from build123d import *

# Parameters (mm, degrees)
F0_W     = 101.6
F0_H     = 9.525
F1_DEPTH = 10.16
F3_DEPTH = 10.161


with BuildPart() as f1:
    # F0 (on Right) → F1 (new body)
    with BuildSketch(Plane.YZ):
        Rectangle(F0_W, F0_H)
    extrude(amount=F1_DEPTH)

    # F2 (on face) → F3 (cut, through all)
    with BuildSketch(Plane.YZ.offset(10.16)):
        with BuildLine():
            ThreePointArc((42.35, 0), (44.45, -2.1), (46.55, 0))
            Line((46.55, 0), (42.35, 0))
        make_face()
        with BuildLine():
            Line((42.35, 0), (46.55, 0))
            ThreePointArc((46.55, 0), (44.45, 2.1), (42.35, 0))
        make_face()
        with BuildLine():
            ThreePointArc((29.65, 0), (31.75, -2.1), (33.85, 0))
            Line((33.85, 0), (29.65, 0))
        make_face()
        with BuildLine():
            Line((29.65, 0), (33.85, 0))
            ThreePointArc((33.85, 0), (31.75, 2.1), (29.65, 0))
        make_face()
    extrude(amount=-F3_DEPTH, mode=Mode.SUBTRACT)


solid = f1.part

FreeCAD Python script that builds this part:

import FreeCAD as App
import Part
import Sketcher
Q = App.Units.Quantity


def add_polygon(sketch, points):
    """Adds a closed chain of lines whose ends are joined by coincident constraints."""
    first, n = sketch.GeometryCount, len(points)
    for a, b in zip(points, points[1:] + points[:1]):
        sketch.addGeometry(Part.LineSegment(App.Vector(*a, 0), App.Vector(*b, 0)), False)
    for i in range(n):
        sketch.addConstraint(Sketcher.Constraint("Coincident", first + i, 2, first + (i + 1) % n, 1))

doc = App.newDocument("Part")
params = doc.addObject("Spreadsheet::Sheet", "Params")
for row, (alias, value) in enumerate([
    ("sketch1_width", "4 in"),
    ("sketch1_height", "0.375 in"),
    ("pad1_length", "0.4 in"),
], start=1):
    params.set(f"A{row}", alias)
    params.set(f"B{row}", "=" + value)
    params.setAlias(f"B{row}", alias)

body = doc.addObject("PartDesign::Body", "Body")

sketch1 = body.newObject("Sketcher::SketchObject", "Sketch")
sketch1.AttachmentSupport = (doc.getObject("YZ_Plane"), [""])
sketch1.MapMode = "FlatFace"
add_polygon(sketch1, [(-51, 5), (-51, -5), (51, -5), (51, 5)])
sketch1.addConstraint([
    Sketcher.Constraint("Vertical", 0),
    Sketcher.Constraint("Horizontal", 1),
    Sketcher.Constraint("Vertical", 2),
    Sketcher.Constraint("Horizontal", 3),
    Sketcher.Constraint("Symmetric", 0, 2, 2, 2, -1, 1),
    Sketcher.Constraint("DistanceX", 1, 1, 1, 2, Q("4 in")),
    Sketcher.Constraint("DistanceY", 0, 2, 0, 1, Q("0.375 in")),
])
sketch1.setExpression("Constraints[9]", "Params.sketch1_width")
sketch1.setExpression("Constraints[10]", "Params.sketch1_height")
pad1 = body.newObject("PartDesign::Pad", "Pad")
pad1.Profile = sketch1
pad1.setExpression("Length", "Params.pad1_length")

sketch2 = body.newObject("Sketcher::SketchObject", "Sketch001")
sketch2.AttachmentSupport = (doc.getObject("YZ_Plane"), [""])
sketch2.MapMode = "FlatFace"
sketch2.AttachmentOffset = App.Placement(App.Vector(0, 0, 0.4 * 25.4), App.Rotation())
sketch2.addGeometry([
    Part.Circle(App.Vector(44.5, 0, 0), App.Vector(0, 0, 1), 2.1),
    Part.Circle(App.Vector(31.8, 0, 0), App.Vector(0, 0, 1), 2.1),
], False)
sketch2.addConstraint([
    Sketcher.Constraint("Equal", 0, 1),
    Sketcher.Constraint("PointOnObject", 0, 3, -1),
    Sketcher.Constraint("PointOnObject", 1, 3, -1),
    Sketcher.Constraint("DistanceX", 1, 3, 0, 3, Q("0.5 in")),
    Sketcher.Constraint("Diameter", 0, Q("4.2 mm")),
    Sketcher.Constraint("DistanceX", -1, 1, 0, 3, Q("1.75 in")),
])
pocket1 = body.newObject("PartDesign::Pocket", "Pocket")
pocket1.Profile = sketch2
pocket1.Type = "ThroughAll"

doc.recompute()
